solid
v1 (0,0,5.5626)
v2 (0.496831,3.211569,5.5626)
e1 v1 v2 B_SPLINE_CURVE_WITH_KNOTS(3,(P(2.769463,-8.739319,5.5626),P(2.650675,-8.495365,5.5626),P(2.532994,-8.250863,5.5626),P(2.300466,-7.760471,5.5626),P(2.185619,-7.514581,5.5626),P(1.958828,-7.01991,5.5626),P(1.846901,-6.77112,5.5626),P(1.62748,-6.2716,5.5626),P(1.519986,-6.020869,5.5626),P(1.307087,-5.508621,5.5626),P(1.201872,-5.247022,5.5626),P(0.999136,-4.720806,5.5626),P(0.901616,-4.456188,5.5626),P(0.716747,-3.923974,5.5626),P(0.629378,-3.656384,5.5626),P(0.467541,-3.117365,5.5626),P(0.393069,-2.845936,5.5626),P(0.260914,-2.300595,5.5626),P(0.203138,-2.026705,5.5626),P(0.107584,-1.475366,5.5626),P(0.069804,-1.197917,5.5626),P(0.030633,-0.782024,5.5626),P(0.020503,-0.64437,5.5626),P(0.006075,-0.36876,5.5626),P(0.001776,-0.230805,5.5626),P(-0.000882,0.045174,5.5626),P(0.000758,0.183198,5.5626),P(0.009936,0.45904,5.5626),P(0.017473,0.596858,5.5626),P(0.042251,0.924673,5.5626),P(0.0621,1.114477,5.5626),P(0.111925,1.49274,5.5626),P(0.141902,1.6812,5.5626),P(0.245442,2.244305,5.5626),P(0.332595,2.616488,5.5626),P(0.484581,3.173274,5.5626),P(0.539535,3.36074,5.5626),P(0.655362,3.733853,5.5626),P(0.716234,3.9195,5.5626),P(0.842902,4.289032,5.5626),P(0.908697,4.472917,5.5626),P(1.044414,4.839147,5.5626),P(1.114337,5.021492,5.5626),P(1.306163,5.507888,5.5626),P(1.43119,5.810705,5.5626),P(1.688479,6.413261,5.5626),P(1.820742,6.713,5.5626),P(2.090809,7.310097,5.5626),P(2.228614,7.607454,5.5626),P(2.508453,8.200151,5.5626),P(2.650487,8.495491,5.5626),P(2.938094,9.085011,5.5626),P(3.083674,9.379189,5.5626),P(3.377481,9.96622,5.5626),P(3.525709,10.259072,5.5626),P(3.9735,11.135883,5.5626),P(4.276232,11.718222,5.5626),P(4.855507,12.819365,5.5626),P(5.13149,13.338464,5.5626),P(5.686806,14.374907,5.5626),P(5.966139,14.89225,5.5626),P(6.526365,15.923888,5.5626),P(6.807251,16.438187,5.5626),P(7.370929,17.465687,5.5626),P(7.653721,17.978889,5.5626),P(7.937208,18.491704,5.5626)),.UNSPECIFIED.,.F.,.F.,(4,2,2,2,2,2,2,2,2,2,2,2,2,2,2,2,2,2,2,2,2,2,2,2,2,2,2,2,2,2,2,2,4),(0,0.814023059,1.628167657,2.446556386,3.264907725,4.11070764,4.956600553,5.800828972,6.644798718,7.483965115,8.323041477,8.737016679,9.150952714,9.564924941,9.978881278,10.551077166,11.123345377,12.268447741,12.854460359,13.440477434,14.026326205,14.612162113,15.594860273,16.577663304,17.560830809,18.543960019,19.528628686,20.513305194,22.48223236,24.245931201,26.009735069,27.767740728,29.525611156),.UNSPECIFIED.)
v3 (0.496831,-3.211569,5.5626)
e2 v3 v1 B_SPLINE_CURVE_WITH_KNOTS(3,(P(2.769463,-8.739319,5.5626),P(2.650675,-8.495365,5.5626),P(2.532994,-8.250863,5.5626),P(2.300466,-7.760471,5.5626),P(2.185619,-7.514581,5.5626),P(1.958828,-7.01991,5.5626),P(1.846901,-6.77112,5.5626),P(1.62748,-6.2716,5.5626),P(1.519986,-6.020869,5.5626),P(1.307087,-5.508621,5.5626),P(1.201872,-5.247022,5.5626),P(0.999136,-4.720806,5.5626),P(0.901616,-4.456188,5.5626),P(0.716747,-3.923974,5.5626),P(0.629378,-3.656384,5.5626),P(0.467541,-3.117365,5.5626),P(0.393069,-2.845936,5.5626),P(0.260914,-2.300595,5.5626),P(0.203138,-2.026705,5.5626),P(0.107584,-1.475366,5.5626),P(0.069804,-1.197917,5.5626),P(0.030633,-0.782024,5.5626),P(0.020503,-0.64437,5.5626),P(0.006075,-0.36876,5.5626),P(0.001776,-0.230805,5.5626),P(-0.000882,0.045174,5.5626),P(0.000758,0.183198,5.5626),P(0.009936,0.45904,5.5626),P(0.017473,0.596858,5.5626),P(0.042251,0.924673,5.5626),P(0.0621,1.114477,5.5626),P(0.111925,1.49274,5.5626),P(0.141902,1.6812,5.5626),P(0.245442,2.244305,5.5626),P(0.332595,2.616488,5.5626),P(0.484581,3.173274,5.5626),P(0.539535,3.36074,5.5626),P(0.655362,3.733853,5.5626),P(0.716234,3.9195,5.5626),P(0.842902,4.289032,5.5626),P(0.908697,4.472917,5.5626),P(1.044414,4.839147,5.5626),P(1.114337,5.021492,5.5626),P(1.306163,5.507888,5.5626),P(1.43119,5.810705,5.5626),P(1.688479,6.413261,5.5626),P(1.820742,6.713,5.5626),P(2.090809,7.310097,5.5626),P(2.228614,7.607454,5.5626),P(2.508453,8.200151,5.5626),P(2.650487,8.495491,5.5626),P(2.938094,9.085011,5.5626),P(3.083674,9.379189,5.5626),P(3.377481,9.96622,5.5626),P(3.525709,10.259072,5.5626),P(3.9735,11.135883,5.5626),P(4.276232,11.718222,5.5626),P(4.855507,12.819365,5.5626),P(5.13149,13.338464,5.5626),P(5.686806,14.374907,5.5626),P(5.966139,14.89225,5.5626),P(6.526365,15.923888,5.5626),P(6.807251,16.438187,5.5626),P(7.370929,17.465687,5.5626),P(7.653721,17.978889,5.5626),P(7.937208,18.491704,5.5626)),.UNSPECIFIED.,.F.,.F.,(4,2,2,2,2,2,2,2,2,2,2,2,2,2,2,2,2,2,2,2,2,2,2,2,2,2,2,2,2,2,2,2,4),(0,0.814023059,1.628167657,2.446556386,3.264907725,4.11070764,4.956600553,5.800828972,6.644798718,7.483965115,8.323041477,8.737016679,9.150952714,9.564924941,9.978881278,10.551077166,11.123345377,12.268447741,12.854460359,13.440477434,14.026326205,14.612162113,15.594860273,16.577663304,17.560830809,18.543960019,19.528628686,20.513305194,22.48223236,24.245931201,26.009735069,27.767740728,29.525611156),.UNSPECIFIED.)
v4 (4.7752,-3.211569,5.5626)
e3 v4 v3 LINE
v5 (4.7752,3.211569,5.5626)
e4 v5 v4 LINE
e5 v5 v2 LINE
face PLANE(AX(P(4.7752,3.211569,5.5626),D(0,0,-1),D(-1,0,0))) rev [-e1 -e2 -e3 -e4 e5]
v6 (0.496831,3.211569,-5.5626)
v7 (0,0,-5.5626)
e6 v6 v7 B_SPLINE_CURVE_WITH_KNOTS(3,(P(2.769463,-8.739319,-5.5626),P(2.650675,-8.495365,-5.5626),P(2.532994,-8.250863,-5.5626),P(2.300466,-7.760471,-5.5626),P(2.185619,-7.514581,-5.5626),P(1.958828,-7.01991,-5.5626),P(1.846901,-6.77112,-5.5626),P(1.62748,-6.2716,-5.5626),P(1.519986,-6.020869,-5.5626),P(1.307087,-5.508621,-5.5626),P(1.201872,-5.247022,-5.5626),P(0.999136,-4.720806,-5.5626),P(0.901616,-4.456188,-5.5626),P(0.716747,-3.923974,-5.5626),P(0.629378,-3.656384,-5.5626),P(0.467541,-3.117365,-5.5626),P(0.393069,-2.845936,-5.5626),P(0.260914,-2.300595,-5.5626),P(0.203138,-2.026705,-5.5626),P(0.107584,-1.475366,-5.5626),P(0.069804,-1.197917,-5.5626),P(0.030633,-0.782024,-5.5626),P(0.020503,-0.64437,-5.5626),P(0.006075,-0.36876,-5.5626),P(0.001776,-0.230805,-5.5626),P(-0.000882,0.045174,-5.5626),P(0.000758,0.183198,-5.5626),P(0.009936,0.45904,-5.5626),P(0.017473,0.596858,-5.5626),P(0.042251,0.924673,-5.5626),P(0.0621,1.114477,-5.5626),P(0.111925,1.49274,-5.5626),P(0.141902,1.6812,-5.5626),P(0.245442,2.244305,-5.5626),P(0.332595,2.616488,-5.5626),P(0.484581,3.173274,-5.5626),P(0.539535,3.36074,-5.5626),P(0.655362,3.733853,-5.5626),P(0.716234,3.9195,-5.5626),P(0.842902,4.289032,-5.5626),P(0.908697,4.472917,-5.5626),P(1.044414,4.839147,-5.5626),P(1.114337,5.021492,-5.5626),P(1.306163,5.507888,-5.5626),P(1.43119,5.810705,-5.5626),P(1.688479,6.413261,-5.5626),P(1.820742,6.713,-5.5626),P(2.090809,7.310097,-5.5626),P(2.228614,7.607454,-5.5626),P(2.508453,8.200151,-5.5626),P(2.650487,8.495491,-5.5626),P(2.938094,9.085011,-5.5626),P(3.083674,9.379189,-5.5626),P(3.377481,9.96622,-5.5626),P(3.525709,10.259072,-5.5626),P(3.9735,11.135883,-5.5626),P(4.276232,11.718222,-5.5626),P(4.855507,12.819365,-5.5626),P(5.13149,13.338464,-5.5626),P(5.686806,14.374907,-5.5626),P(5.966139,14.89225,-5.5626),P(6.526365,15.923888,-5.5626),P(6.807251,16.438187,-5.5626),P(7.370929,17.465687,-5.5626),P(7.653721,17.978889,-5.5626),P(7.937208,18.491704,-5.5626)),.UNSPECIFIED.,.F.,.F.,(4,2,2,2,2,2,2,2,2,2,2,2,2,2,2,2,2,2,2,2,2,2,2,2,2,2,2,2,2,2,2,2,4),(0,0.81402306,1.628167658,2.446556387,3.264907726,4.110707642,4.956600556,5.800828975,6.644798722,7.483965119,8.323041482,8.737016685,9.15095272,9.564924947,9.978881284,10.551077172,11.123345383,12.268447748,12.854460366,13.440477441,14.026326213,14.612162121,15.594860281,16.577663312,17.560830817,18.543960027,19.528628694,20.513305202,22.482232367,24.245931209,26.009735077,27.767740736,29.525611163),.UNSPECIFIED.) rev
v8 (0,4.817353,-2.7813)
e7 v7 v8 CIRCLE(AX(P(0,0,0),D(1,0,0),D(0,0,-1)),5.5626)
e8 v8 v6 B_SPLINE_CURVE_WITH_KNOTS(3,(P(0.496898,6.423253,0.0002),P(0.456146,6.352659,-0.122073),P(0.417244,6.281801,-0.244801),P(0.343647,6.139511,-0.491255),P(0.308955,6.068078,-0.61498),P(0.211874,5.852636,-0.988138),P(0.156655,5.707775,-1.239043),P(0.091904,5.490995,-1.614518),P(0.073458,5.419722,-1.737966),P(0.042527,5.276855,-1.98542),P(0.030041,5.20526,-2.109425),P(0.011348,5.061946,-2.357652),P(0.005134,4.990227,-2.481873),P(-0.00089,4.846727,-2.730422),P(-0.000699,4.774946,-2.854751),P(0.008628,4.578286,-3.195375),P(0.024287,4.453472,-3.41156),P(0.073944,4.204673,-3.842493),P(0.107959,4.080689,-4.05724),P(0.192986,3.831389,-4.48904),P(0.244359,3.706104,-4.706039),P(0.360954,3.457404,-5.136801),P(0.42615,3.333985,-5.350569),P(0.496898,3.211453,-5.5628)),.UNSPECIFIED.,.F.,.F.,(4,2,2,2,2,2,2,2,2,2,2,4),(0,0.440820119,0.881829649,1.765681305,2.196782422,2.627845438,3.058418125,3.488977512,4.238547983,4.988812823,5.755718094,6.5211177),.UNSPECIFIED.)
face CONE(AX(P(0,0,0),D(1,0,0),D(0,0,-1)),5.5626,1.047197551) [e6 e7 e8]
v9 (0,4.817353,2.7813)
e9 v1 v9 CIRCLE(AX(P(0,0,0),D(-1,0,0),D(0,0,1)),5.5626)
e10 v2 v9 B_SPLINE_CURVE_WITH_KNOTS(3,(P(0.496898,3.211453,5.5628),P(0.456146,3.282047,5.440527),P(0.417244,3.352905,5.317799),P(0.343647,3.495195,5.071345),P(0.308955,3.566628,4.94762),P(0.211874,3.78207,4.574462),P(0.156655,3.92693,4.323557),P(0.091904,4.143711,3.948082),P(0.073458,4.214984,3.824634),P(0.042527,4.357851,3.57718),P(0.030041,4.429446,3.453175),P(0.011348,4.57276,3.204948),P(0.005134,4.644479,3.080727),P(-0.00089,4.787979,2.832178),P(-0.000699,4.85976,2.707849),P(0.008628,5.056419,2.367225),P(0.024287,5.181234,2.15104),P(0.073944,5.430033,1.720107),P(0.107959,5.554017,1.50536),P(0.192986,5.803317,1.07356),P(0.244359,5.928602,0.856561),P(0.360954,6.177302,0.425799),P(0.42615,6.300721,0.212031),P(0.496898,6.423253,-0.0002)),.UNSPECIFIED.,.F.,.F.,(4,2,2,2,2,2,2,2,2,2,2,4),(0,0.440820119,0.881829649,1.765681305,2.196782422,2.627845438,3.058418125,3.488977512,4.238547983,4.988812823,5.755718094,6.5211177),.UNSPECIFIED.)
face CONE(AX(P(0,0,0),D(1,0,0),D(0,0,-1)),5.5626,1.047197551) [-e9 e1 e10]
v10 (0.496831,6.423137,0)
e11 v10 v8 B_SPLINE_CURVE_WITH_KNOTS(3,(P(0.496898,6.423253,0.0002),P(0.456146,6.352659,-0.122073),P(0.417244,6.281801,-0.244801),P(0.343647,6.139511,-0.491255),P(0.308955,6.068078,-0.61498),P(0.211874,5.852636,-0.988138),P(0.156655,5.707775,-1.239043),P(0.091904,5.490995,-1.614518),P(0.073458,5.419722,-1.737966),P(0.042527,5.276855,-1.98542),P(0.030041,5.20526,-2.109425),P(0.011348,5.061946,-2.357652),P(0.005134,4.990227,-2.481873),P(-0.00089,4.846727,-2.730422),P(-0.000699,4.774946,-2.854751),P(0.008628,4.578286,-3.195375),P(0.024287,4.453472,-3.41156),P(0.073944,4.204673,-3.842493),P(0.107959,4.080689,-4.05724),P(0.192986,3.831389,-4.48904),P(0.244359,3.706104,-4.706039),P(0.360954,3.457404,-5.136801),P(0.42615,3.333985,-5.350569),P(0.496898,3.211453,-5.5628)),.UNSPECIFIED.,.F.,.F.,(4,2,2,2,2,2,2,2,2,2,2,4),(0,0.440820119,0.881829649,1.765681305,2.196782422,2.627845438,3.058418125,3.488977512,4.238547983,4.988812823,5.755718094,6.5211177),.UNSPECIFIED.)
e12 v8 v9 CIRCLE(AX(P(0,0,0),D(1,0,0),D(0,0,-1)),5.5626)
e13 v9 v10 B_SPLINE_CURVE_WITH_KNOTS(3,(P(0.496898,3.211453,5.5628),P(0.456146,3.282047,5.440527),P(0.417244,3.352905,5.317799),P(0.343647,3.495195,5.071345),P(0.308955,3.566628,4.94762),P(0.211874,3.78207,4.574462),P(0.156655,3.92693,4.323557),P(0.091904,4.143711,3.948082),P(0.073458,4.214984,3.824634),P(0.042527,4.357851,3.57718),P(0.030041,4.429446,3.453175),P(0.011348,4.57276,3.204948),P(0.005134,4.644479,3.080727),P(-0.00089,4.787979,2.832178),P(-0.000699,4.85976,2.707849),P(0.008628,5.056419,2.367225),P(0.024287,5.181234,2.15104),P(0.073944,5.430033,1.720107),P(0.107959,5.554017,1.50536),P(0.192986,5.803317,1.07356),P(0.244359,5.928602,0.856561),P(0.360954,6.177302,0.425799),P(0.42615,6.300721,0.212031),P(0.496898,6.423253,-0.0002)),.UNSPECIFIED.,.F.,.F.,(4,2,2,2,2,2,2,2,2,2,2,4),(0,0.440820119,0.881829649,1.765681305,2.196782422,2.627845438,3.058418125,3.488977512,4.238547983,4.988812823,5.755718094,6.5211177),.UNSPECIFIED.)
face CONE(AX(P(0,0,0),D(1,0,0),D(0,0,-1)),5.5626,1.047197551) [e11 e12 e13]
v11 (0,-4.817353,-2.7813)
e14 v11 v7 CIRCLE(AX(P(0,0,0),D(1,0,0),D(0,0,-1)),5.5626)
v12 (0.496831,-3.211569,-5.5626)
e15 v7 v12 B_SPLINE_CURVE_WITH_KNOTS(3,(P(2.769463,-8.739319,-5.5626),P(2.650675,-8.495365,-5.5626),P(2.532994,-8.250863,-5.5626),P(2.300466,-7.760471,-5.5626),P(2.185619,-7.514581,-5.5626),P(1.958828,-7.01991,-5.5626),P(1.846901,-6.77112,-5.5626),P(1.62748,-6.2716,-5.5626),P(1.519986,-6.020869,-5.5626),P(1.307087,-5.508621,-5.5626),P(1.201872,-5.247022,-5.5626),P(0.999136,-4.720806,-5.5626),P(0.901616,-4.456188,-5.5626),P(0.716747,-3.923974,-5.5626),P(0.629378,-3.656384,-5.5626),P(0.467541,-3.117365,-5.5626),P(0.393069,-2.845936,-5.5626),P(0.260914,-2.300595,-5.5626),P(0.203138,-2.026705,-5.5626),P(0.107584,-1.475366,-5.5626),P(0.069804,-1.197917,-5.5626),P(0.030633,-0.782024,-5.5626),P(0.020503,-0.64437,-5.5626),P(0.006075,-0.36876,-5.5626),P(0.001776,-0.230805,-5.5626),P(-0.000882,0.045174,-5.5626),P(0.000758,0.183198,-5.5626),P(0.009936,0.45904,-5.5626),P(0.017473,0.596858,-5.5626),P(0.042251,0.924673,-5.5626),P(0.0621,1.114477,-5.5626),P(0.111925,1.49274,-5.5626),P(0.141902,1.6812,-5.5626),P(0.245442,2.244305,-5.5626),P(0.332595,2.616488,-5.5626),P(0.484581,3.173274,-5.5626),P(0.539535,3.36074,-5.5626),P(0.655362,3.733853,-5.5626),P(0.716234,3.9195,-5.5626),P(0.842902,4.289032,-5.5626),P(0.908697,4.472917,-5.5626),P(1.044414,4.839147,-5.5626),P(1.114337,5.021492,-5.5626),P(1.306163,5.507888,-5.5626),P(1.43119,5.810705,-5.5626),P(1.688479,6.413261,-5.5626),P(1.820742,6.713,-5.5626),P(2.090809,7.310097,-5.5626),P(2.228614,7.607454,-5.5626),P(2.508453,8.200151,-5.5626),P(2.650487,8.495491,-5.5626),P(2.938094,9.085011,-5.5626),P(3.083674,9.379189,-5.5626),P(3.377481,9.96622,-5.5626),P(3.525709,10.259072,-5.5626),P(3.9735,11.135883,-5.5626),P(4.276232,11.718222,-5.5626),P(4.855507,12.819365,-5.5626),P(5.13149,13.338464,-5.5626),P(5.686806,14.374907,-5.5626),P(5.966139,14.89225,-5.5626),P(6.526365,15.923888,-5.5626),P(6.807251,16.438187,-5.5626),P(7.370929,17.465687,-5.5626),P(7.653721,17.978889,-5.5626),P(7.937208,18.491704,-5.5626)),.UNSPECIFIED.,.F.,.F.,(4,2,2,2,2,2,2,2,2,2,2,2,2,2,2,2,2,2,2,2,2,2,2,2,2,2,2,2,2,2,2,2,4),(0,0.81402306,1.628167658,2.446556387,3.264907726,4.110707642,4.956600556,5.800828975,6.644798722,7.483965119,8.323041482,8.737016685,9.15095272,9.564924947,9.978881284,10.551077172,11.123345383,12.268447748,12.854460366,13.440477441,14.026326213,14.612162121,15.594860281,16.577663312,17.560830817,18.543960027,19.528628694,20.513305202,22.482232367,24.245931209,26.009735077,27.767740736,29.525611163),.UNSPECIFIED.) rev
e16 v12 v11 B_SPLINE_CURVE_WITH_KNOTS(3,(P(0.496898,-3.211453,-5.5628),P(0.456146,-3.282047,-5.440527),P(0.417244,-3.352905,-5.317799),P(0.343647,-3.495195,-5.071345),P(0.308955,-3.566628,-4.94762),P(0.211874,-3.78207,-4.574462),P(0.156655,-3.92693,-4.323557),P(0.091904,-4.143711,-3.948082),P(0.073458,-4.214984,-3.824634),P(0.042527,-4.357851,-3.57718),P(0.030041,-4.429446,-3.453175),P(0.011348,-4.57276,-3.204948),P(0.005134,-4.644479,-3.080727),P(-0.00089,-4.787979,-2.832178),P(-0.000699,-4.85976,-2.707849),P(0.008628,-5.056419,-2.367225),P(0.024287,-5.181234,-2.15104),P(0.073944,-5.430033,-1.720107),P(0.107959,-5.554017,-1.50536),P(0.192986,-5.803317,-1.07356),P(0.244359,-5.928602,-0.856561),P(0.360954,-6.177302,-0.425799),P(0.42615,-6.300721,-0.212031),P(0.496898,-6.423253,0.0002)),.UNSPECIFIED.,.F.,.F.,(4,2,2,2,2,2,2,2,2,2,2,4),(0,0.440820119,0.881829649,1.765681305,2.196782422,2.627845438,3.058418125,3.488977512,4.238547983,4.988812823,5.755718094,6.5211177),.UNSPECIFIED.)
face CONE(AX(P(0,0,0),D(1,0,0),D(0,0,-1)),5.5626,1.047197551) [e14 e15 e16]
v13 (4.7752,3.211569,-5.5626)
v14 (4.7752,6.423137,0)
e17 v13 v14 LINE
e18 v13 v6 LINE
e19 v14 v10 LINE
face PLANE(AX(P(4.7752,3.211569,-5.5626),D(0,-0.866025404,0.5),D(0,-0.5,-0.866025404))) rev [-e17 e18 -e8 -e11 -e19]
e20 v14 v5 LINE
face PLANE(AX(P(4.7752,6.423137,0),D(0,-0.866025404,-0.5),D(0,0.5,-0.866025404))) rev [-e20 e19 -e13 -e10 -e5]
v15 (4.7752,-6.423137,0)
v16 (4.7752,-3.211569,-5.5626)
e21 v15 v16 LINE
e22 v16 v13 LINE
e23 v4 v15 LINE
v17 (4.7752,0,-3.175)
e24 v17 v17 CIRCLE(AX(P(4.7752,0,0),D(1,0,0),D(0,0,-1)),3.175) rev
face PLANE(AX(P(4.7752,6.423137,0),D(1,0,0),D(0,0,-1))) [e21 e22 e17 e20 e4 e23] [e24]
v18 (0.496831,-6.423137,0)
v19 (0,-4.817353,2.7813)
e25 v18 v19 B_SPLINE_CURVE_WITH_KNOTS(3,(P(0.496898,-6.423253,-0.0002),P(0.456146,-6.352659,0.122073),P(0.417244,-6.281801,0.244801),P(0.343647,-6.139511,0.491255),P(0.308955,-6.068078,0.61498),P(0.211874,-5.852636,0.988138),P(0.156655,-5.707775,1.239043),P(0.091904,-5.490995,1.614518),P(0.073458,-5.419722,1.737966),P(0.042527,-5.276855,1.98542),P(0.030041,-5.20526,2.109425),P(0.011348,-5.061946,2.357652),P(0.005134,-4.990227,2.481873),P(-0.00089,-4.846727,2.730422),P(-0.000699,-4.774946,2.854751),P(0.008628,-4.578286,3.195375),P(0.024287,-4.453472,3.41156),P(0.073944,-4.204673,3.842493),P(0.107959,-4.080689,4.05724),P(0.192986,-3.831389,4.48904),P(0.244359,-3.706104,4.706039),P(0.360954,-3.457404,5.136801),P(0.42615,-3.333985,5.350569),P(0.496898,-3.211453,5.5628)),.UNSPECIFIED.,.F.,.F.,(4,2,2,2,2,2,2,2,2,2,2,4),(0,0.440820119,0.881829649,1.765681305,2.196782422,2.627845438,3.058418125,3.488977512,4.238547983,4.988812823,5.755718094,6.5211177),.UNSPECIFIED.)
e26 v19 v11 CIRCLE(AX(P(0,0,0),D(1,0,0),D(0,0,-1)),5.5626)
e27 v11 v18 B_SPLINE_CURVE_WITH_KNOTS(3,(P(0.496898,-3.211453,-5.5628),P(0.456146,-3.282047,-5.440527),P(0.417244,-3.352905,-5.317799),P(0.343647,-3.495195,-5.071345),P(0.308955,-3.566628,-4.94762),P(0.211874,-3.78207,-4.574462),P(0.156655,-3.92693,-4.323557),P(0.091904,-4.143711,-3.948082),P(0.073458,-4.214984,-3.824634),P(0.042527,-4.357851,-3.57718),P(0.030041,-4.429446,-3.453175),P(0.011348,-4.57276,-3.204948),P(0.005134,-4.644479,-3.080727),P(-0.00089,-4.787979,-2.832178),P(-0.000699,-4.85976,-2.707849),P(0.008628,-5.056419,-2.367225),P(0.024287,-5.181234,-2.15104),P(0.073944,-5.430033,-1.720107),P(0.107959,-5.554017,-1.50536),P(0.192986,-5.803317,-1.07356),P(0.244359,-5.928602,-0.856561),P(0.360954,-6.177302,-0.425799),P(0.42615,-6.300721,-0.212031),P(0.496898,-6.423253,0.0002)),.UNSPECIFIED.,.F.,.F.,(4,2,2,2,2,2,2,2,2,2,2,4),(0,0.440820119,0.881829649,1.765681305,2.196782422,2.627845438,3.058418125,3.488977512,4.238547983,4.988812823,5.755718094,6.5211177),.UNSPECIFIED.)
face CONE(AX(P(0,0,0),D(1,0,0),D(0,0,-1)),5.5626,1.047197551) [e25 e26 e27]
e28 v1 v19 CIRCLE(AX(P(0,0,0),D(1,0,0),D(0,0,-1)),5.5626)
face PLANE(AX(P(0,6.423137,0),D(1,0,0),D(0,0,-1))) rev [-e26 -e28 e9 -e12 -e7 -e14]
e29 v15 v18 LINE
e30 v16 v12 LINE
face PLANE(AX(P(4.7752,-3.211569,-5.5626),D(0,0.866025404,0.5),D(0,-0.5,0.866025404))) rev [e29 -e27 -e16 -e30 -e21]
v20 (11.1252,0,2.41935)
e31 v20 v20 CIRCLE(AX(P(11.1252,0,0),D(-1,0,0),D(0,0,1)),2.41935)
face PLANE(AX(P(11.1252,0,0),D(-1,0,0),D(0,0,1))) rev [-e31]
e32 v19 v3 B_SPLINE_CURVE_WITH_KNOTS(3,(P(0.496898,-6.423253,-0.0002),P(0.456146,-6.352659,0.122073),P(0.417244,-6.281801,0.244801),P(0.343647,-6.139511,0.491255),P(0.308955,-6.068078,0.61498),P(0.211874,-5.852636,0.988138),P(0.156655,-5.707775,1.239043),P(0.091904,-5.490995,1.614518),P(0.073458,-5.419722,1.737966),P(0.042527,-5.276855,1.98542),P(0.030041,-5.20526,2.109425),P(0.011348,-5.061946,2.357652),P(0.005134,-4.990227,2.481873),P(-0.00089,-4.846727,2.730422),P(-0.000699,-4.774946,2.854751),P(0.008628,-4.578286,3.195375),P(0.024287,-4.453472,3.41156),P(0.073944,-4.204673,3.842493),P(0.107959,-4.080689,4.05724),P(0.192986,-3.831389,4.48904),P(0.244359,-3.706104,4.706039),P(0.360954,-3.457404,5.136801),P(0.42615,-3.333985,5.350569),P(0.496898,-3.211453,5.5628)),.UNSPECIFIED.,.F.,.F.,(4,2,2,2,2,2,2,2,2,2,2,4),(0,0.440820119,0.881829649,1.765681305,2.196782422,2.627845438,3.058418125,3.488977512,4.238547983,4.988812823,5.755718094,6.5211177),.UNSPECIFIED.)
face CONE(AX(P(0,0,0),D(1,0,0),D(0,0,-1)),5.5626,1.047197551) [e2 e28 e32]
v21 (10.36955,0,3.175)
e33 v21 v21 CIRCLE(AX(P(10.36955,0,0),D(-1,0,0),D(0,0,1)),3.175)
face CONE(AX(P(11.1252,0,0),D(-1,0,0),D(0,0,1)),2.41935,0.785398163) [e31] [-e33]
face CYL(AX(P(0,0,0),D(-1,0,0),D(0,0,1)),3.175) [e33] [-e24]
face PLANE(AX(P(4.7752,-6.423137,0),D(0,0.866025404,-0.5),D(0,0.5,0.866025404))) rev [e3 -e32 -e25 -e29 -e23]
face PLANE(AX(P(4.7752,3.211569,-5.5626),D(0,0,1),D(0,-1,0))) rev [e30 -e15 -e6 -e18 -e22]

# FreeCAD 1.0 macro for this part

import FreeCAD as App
import Part
import Sketcher
Q = App.Units.Quantity


def add_polygon(sketch, points):
    """Adds a closed chain of lines whose ends are joined by coincident constraints."""
    first, n = sketch.GeometryCount, len(points)
    for a, b in zip(points, points[1:] + points[:1]):
        sketch.addGeometry(Part.LineSegment(App.Vector(*a, 0), App.Vector(*b, 0)), False)
    for i in range(n):
        sketch.addConstraint(Sketcher.Constraint("Coincident", first + i, 2, first + (i + 1) % n, 1))

doc = App.newDocument("Part")
body = doc.addObject("PartDesign::Body", "Body")

# Sketch on YZ plane
sketch1 = body.newObject("Sketcher::SketchObject", "Sketch")
sketch1.AttachmentSupport = (doc.getObject("YZ_Plane"), [""])
sketch1.MapMode = "FlatFace"
add_polygon(sketch1, [(-3, -6), (3, -6), (6, 0), (3, 6), (-3, 6), (-6, 0)])  # lines 0-5
sketch1.addConstraint(Sketcher.Constraint("Horizontal", 0))
sketch1.addConstraint(Sketcher.Constraint("Horizontal", 3))
sketch1.addConstraint(Sketcher.Constraint("Symmetric", 0, 2, 3, 2, -1, 1))
sketch1.addConstraint(Sketcher.Constraint("Symmetric", 1, 2, 4, 2, -1, 1))
sketch1.addConstraint(Sketcher.Constraint("PointOnObject", 1, 2, -1))
sketch1.addConstraint(Sketcher.Constraint("Parallel", 2, 5))
sketch1.addConstraint(Sketcher.Constraint("Vertical", 0, 2, 2, 2))
sketch1.addConstraint(Sketcher.Constraint("Angle", 1, Q("60 deg")))
sketch1.addConstraint(Sketcher.Constraint("DistanceY", 0, 2, -1, 1, Q("0.219 in")))
sketch1.addConstraint(Sketcher.Constraint("DistanceX", 0, 1, 0, 2, 6.423137))
pad1 = body.newObject("PartDesign::Pad", "Pad")
pad1.Profile = sketch1
pad1.Length = Q("0.188 in")

# Sketch on XY plane
sketch2 = body.newObject("Sketcher::SketchObject", "Sketch001")
sketch2.AttachmentSupport = (doc.getObject("XY_Plane"), [""])
sketch2.MapMode = "FlatFace"
add_polygon(sketch2, [(0, 0), (11.1, 0), (11.1, 2.4), (10.4, 3.2), (0, 3.2)])  # lines 0-4
sketch2.addConstraint(Sketcher.Constraint("Horizontal", 0))
sketch2.addConstraint(Sketcher.Constraint("Vertical", 1))
sketch2.addConstraint(Sketcher.Constraint("Horizontal", 3))
sketch2.addConstraint(Sketcher.Constraint("Vertical", 4))
sketch2.addConstraint(Sketcher.Constraint("Coincident", 4, 2, -1, 1))
sketch2.addConstraint(Sketcher.Constraint("Angle", 2, Q("135 deg")))
sketch2.addConstraint(Sketcher.Constraint("DistanceX", 0, 1, 0, 2, Q("0.438 in")))
sketch2.addConstraint(Sketcher.Constraint("DistanceY", 4, 2, 4, 1, Q("0.125 in")))
sketch2.addConstraint(Sketcher.Constraint("DistanceX", 3, 2, 3, 1, 10.36955))
revolution = body.newObject("PartDesign::Revolution", "Revolution")
revolution.Profile = sketch2
revolution.ReferenceAxis = (sketch2, ["H_Axis"])
revolution.Angle = 360

# Sketch on XY plane
sketch3 = body.newObject("Sketcher::SketchObject", "Sketch002")
sketch3.AttachmentSupport = (doc.getObject("XY_Plane"), [""])
sketch3.MapMode = "FlatFace"
add_polygon(sketch3, [(0, 6), (4, 13), (4, 19), (-13, 19), (-13, 6)])  # lines 0-4
sketch3.addConstraint(Sketcher.Constraint("Vertical", 1))
sketch3.addConstraint(Sketcher.Constraint("Horizontal", 2))
sketch3.addConstraint(Sketcher.Constraint("Vertical", 3))
sketch3.addConstraint(Sketcher.Constraint("Horizontal", 4))
sketch3.addConstraint(Sketcher.Constraint("PointOnObject", 4, 2, -2))
sketch3.addConstraint(Sketcher.Constraint("DistanceX", 4, 1, 4, 2, Q("0.5 in")))
sketch3.addConstraint(Sketcher.Constraint("Angle", 0, Q("60 deg")))
sketch3.addConstraint(Sketcher.Constraint("DistanceY", 1, 1, 1, 2, Q("0.25 in")))
sketch3.addConstraint(Sketcher.Constraint("DistanceY", -1, 1, 3, 2, Q("0.219 in")))
sketch3.addConstraint(Sketcher.Constraint("Distance", 0, 8.326011))
groove = body.newObject("PartDesign::Groove", "Groove")
groove.Profile = sketch3
groove.ReferenceAxis = (sketch3, ["H_Axis"])
groove.Angle = 360

doc.recompute()
